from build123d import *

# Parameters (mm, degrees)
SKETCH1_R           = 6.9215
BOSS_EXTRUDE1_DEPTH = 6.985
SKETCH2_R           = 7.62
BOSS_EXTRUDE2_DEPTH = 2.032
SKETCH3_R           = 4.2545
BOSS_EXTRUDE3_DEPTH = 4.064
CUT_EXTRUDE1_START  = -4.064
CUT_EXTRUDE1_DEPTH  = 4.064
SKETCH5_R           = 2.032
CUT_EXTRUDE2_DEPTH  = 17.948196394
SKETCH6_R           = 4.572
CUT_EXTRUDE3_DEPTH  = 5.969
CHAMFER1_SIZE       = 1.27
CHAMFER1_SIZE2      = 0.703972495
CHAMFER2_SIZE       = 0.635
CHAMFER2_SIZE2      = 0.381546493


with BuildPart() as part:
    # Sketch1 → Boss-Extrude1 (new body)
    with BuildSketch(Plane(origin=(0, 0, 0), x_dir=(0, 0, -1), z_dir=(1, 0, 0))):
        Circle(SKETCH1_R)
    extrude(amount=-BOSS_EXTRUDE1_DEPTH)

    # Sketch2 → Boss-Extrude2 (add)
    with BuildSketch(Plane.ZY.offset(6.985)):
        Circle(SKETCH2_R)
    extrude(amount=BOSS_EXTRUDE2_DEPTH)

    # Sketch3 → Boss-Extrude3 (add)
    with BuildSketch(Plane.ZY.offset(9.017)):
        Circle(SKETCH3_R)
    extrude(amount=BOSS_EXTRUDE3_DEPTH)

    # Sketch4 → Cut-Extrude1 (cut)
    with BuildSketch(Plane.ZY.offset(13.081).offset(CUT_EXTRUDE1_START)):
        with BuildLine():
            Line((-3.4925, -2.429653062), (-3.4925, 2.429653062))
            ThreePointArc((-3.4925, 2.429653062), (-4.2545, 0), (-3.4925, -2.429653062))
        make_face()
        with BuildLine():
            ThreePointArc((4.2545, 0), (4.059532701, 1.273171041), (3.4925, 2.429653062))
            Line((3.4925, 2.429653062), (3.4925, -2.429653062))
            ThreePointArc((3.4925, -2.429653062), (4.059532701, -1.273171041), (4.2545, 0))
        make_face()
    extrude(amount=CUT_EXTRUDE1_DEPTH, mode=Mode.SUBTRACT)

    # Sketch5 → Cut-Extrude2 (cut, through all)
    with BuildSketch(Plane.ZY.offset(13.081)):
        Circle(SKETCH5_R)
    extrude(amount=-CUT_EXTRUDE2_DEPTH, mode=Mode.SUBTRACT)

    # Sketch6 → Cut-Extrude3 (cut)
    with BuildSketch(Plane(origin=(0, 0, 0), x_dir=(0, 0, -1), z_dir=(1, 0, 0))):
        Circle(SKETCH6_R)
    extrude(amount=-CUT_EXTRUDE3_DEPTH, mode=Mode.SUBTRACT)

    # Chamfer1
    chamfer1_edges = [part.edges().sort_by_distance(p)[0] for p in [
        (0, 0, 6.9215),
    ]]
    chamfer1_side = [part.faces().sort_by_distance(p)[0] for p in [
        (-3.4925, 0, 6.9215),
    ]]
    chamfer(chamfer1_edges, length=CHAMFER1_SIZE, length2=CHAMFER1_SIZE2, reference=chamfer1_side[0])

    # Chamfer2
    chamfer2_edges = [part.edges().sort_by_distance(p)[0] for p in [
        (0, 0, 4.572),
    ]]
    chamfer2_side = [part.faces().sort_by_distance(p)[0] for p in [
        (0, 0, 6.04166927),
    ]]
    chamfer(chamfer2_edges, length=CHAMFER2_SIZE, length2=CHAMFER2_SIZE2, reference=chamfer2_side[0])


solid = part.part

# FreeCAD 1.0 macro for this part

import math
import FreeCAD as App
import Part
import Sketcher

V = App.Vector
Q = App.Units.Quantity


def edges_at(feature, points):
    """Names of the edges that pass closest to the given points."""
    edges = feature.Shape.Edges
    near = lambda p: min(range(len(edges)), key=lambda i: edges[i].distToShape(Part.Vertex(*p))[0])
    return sorted({f"Edge{near(p) + 1}" for p in points})

doc = App.newDocument("Part")
body = doc.addObject("PartDesign::Body", "Body")

# Sketch on YZ plane
sketch1 = body.newObject("Sketcher::SketchObject", "Sketch")
sketch1.AttachmentSupport = (doc.getObject("YZ_Plane"), [""])
sketch1.MapMode = "FlatFace"
sketch1.addGeometry(Part.Circle(V(0, 0, 0), V(0, 0, 1), 7), False)
sketch1.addConstraint([
    Sketcher.Constraint("Coincident", 0, 3, -1, 1),
    Sketcher.Constraint("Diameter", 0, Q("0.545 in")),
])
pad1 = body.newObject("PartDesign::Pad", "Pad")
pad1.Profile = sketch1
pad1.Length = Q("0.275 in")
pad1.Reversed = True

# Sketch on YZ plane
sketch2 = body.newObject("Sketcher::SketchObject", "Sketch001")
sketch2.AttachmentSupport = (doc.getObject("YZ_Plane"), [""])
sketch2.MapMode = "FlatFace"
sketch2.AttachmentOffset = App.Placement(V(0, 0, -0.275 * 25.4), App.Rotation())
sketch2.addGeometry(Part.Circle(V(0, 0, 0), V(0, 0, 1), 8), False)
sketch2.addConstraint([
    Sketcher.Constraint("Coincident", 0, 3, -1, 1),
    Sketcher.Constraint("Diameter", 0, Q("0.6 in")),
])
pad2 = body.newObject("PartDesign::Pad", "Pad001")
pad2.Profile = sketch2
pad2.Length = Q("0.08 in")
pad2.Reversed = True

# Sketch on YZ plane
sketch3 = body.newObject("Sketcher::SketchObject", "Sketch002")
sketch3.AttachmentSupport = (doc.getObject("YZ_Plane"), [""])
sketch3.MapMode = "FlatFace"
sketch3.AttachmentOffset = App.Placement(V(0, 0, -0.355 * 25.4), App.Rotation())
sketch3.addGeometry(Part.Circle(V(0, 0, 0), V(0, 0, 1), 4.3), False)
sketch3.addConstraint([
    Sketcher.Constraint("Coincident", 0, 3, -1, 1),
    Sketcher.Constraint("Diameter", 0, Q("0.335 in")),
])
pad3 = body.newObject("PartDesign::Pad", "Pad002")
pad3.Profile = sketch3
pad3.Length = Q("0.16 in")
pad3.Reversed = True

# Sketch on YZ plane
sketch4 = body.newObject("Sketcher::SketchObject", "Sketch003")
sketch4.AttachmentSupport = (doc.getObject("YZ_Plane"), [""])
sketch4.MapMode = "FlatFace"
sketch4.AttachmentOffset = App.Placement(V(0, 0, -0.355 * 25.4), App.Rotation())
sketch4.addGeometry([
    Part.LineSegment(V(-2.4, -3.5, 0), V(2.4, -3.5, 0)),  # 0
    Part.ArcOfCircle(Part.Circle(V(0, 0, 0), V(0, 0, 1), 4.3), math.radians(-125), math.radians(-55)),  # 1
    Part.ArcOfCircle(Part.Circle(V(0, 0, 0), V(0, 0, 1), 4.3), math.radians(55), math.radians(90)),  # 2
    Part.LineSegment(V(2.4, 3.5, 0), V(-2.4, 3.5, 0)),  # 3
    Part.ArcOfCircle(Part.Circle(V(0, 0, 0), V(0, 0, 1), 4.3), math.radians(90), math.radians(125)),  # 4
], False)
sketch4.addConstraint([
    Sketcher.Constraint("Coincident", 0, 1, 1, 1),
    Sketcher.Constraint("Coincident", 1, 2, 0, 2),
    Sketcher.Constraint("Coincident", 2, 1, 3, 1),
    Sketcher.Constraint("Coincident", 3, 2, 4, 2),
    Sketcher.Constraint("Tangent", 4, 1, 2, 2),
    Sketcher.Constraint("Horizontal", 0),
    Sketcher.Constraint("Horizontal", 3),
    Sketcher.Constraint("Coincident", 1, 3, -1, 1),
    Sketcher.Constraint("Coincident", 2, 3, -1, 1),
    Sketcher.Constraint("Equal", 1, 2),
    Sketcher.Constraint("Equal", 2, 4),
    Sketcher.Constraint("PointOnObject", 4, 1, -2),
    Sketcher.Constraint("Vertical", 1, 2, 2, 1),
    Sketcher.Constraint("Radius", 1, Q("0.1675 in")),
    Sketcher.Constraint("DistanceY", 3, 2, 4, 1, Q("0.03 in")),
])
pocket1 = body.newObject("PartDesign::Pocket", "Pocket")
pocket1.Profile = sketch4
pocket1.Length = Q("0.16 in")

# Sketch on YZ plane
sketch5 = body.newObject("Sketcher::SketchObject", "Sketch004")
sketch5.AttachmentSupport = (doc.getObject("YZ_Plane"), [""])
sketch5.MapMode = "FlatFace"
sketch5.AttachmentOffset = App.Placement(V(0, 0, -0.515 * 25.4), App.Rotation())
sketch5.addGeometry(Part.Circle(V(0, 0, 0), V(0, 0, 1), 2), False)
sketch5.addConstraint([
    Sketcher.Constraint("Coincident", 0, 3, -1, 1),
    Sketcher.Constraint("Diameter", 0, Q("0.16 in")),
])
pocket2 = body.newObject("PartDesign::Pocket", "Pocket001")
pocket2.Profile = sketch5
pocket2.Type = "ThroughAll"
pocket2.Reversed = True

# Sketch on YZ plane
sketch6 = body.newObject("Sketcher::SketchObject", "Sketch005")
sketch6.AttachmentSupport = (doc.getObject("YZ_Plane"), [""])
sketch6.MapMode = "FlatFace"
sketch6.addGeometry(Part.Circle(V(0, 0, 0), V(0, 0, 1), 4.6), False)
sketch6.addConstraint([
    Sketcher.Constraint("Coincident", 0, 3, -1, 1),
    Sketcher.Constraint("Diameter", 0, Q("0.36 in")),
])
pocket3 = body.newObject("PartDesign::Pocket", "Pocket002")
pocket3.Profile = sketch6
pocket3.Length = Q("0.235 in")
doc.recompute()

chamfer = body.newObject("PartDesign::Chamfer", "Chamfer")
chamfer.Base = (pocket3, edges_at(pocket3, [(0, 0, 6.921)]))
chamfer.ChamferType = "Two distances"
chamfer.Size = Q("0.05 in")
chamfer.Size2 = 0.703972
doc.recompute()

chamfer2 = body.newObject("PartDesign::Chamfer", "Chamfer001")
chamfer2.Base = (chamfer, edges_at(chamfer, [(0, 0, 4.572)]))
chamfer2.ChamferType = "Two distances"
chamfer2.Size = Q("0.025 in")
chamfer2.Size2 = 0.381546

doc.recompute()
